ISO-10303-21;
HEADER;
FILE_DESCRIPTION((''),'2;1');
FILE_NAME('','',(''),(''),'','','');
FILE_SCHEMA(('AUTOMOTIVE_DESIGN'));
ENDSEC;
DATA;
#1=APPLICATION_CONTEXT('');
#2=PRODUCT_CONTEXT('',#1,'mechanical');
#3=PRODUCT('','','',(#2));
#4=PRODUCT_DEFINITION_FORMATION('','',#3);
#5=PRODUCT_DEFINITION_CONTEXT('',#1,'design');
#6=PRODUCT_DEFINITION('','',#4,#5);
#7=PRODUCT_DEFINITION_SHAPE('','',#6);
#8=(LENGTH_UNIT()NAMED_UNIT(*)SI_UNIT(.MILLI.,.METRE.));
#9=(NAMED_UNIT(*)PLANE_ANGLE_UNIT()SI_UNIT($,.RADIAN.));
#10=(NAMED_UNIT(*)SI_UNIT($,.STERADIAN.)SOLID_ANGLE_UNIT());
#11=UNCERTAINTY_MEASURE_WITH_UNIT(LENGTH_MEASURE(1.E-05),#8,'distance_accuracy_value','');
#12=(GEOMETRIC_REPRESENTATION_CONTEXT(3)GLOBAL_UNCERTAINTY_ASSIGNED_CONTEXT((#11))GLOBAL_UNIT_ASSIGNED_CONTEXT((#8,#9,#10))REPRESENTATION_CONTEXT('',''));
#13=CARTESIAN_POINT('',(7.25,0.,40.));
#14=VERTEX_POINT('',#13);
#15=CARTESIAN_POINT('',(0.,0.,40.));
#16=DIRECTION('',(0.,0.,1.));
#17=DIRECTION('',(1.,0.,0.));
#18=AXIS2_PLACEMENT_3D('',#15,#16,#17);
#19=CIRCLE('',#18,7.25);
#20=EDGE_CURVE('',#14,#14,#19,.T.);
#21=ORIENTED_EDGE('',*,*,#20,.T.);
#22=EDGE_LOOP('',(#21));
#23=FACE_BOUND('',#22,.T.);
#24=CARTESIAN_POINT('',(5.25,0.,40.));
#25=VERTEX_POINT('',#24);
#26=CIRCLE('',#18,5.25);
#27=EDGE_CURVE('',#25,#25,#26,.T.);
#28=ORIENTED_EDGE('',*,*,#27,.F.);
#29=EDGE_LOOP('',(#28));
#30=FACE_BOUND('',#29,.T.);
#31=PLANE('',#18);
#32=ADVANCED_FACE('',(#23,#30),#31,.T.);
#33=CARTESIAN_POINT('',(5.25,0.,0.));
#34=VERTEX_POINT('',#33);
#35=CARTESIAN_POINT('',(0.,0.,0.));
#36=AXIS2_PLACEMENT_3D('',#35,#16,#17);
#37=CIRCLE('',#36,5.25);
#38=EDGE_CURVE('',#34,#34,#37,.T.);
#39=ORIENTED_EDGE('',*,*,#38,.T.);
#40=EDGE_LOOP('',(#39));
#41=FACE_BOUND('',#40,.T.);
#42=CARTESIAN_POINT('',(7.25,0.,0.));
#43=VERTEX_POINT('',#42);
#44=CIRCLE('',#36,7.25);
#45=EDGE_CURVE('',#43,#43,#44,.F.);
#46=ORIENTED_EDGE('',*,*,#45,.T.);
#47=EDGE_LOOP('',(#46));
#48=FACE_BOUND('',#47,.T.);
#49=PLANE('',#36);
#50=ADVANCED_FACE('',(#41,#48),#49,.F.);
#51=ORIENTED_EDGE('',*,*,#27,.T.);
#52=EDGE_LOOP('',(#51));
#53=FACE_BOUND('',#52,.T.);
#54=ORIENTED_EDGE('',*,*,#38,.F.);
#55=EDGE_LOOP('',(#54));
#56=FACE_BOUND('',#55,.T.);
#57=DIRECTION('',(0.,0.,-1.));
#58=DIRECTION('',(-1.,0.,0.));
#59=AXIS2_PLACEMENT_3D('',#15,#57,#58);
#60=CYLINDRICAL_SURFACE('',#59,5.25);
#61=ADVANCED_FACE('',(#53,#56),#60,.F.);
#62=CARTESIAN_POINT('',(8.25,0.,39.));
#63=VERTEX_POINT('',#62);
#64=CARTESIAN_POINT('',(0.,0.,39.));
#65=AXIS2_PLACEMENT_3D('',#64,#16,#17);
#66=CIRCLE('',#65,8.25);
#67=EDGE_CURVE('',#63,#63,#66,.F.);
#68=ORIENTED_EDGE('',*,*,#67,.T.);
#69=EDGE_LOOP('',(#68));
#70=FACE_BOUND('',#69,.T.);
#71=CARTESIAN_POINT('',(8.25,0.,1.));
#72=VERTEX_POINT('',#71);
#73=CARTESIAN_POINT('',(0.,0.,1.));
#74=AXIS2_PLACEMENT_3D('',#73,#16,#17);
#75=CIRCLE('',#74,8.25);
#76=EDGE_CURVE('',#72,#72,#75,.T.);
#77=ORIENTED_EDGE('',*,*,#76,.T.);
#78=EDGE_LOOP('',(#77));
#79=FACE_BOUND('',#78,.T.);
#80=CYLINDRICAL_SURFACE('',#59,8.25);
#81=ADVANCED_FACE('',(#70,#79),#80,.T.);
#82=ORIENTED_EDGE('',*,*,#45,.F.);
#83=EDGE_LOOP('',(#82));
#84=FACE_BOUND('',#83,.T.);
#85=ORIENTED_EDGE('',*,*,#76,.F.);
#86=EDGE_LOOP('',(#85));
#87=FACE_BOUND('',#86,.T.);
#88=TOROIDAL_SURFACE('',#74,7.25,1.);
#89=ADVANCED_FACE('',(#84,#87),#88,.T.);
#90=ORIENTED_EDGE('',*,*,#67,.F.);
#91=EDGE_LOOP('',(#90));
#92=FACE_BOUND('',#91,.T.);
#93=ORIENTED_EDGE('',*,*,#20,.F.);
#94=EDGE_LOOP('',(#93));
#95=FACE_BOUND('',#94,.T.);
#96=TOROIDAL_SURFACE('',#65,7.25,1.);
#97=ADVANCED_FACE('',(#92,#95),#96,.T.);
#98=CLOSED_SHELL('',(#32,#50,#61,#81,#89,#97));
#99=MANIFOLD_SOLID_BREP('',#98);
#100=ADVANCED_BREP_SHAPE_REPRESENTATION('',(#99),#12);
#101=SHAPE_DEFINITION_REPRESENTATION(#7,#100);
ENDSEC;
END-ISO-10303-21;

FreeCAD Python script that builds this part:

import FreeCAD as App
import Part
import Sketcher

V = App.Vector


def edges_at(feature, points):
    """Names of the edges that pass closest to the given points."""
    edges = feature.Shape.Edges
    near = lambda p: min(range(len(edges)), key=lambda i: edges[i].distToShape(Part.Vertex(*p))[0])
    return sorted({f"Edge{near(p) + 1}" for p in points})

doc = App.newDocument("Part")
body = doc.addObject("PartDesign::Body", "Body")

# Sketch on XY plane
sketch1 = doc.addObject("Sketcher::SketchObject", "Sketch")
body.addObject(sketch1)
sketch1.AttachmentSupport = (doc.XY_Plane, [""])
sketch1.MapMode = "FlatFace"
sketch1.addGeometry(Part.Circle(V(0, 0, 0), V(0, 0, 1), 8), False)
sketch1.addGeometry(Part.Circle(V(0, 0, 0), V(0, 0, 1), 5), False)
sketch1.addConstraint(Sketcher.Constraint("Coincident", 0, 3, -1, 1))
sketch1.addConstraint(Sketcher.Constraint("Coincident", 1, 3, -1, 1))
sketch1.addConstraint(Sketcher.Constraint("Diameter", 0, 16.5))
sketch1.addConstraint(Sketcher.Constraint("Diameter", 1, 10.5))
pad1 = doc.addObject("PartDesign::Pad", "Pad")
body.addObject(pad1)
pad1.Profile = sketch1
pad1.Length = 40
doc.recompute()

fillet = doc.addObject("PartDesign::Fillet", "Fillet")
body.addObject(fillet)
fillet.Base = (pad1, edges_at(pad1, [(-8.25, 0, 0), (-8.25, 0, 40)]))
fillet.Radius = 1

doc.recompute()
